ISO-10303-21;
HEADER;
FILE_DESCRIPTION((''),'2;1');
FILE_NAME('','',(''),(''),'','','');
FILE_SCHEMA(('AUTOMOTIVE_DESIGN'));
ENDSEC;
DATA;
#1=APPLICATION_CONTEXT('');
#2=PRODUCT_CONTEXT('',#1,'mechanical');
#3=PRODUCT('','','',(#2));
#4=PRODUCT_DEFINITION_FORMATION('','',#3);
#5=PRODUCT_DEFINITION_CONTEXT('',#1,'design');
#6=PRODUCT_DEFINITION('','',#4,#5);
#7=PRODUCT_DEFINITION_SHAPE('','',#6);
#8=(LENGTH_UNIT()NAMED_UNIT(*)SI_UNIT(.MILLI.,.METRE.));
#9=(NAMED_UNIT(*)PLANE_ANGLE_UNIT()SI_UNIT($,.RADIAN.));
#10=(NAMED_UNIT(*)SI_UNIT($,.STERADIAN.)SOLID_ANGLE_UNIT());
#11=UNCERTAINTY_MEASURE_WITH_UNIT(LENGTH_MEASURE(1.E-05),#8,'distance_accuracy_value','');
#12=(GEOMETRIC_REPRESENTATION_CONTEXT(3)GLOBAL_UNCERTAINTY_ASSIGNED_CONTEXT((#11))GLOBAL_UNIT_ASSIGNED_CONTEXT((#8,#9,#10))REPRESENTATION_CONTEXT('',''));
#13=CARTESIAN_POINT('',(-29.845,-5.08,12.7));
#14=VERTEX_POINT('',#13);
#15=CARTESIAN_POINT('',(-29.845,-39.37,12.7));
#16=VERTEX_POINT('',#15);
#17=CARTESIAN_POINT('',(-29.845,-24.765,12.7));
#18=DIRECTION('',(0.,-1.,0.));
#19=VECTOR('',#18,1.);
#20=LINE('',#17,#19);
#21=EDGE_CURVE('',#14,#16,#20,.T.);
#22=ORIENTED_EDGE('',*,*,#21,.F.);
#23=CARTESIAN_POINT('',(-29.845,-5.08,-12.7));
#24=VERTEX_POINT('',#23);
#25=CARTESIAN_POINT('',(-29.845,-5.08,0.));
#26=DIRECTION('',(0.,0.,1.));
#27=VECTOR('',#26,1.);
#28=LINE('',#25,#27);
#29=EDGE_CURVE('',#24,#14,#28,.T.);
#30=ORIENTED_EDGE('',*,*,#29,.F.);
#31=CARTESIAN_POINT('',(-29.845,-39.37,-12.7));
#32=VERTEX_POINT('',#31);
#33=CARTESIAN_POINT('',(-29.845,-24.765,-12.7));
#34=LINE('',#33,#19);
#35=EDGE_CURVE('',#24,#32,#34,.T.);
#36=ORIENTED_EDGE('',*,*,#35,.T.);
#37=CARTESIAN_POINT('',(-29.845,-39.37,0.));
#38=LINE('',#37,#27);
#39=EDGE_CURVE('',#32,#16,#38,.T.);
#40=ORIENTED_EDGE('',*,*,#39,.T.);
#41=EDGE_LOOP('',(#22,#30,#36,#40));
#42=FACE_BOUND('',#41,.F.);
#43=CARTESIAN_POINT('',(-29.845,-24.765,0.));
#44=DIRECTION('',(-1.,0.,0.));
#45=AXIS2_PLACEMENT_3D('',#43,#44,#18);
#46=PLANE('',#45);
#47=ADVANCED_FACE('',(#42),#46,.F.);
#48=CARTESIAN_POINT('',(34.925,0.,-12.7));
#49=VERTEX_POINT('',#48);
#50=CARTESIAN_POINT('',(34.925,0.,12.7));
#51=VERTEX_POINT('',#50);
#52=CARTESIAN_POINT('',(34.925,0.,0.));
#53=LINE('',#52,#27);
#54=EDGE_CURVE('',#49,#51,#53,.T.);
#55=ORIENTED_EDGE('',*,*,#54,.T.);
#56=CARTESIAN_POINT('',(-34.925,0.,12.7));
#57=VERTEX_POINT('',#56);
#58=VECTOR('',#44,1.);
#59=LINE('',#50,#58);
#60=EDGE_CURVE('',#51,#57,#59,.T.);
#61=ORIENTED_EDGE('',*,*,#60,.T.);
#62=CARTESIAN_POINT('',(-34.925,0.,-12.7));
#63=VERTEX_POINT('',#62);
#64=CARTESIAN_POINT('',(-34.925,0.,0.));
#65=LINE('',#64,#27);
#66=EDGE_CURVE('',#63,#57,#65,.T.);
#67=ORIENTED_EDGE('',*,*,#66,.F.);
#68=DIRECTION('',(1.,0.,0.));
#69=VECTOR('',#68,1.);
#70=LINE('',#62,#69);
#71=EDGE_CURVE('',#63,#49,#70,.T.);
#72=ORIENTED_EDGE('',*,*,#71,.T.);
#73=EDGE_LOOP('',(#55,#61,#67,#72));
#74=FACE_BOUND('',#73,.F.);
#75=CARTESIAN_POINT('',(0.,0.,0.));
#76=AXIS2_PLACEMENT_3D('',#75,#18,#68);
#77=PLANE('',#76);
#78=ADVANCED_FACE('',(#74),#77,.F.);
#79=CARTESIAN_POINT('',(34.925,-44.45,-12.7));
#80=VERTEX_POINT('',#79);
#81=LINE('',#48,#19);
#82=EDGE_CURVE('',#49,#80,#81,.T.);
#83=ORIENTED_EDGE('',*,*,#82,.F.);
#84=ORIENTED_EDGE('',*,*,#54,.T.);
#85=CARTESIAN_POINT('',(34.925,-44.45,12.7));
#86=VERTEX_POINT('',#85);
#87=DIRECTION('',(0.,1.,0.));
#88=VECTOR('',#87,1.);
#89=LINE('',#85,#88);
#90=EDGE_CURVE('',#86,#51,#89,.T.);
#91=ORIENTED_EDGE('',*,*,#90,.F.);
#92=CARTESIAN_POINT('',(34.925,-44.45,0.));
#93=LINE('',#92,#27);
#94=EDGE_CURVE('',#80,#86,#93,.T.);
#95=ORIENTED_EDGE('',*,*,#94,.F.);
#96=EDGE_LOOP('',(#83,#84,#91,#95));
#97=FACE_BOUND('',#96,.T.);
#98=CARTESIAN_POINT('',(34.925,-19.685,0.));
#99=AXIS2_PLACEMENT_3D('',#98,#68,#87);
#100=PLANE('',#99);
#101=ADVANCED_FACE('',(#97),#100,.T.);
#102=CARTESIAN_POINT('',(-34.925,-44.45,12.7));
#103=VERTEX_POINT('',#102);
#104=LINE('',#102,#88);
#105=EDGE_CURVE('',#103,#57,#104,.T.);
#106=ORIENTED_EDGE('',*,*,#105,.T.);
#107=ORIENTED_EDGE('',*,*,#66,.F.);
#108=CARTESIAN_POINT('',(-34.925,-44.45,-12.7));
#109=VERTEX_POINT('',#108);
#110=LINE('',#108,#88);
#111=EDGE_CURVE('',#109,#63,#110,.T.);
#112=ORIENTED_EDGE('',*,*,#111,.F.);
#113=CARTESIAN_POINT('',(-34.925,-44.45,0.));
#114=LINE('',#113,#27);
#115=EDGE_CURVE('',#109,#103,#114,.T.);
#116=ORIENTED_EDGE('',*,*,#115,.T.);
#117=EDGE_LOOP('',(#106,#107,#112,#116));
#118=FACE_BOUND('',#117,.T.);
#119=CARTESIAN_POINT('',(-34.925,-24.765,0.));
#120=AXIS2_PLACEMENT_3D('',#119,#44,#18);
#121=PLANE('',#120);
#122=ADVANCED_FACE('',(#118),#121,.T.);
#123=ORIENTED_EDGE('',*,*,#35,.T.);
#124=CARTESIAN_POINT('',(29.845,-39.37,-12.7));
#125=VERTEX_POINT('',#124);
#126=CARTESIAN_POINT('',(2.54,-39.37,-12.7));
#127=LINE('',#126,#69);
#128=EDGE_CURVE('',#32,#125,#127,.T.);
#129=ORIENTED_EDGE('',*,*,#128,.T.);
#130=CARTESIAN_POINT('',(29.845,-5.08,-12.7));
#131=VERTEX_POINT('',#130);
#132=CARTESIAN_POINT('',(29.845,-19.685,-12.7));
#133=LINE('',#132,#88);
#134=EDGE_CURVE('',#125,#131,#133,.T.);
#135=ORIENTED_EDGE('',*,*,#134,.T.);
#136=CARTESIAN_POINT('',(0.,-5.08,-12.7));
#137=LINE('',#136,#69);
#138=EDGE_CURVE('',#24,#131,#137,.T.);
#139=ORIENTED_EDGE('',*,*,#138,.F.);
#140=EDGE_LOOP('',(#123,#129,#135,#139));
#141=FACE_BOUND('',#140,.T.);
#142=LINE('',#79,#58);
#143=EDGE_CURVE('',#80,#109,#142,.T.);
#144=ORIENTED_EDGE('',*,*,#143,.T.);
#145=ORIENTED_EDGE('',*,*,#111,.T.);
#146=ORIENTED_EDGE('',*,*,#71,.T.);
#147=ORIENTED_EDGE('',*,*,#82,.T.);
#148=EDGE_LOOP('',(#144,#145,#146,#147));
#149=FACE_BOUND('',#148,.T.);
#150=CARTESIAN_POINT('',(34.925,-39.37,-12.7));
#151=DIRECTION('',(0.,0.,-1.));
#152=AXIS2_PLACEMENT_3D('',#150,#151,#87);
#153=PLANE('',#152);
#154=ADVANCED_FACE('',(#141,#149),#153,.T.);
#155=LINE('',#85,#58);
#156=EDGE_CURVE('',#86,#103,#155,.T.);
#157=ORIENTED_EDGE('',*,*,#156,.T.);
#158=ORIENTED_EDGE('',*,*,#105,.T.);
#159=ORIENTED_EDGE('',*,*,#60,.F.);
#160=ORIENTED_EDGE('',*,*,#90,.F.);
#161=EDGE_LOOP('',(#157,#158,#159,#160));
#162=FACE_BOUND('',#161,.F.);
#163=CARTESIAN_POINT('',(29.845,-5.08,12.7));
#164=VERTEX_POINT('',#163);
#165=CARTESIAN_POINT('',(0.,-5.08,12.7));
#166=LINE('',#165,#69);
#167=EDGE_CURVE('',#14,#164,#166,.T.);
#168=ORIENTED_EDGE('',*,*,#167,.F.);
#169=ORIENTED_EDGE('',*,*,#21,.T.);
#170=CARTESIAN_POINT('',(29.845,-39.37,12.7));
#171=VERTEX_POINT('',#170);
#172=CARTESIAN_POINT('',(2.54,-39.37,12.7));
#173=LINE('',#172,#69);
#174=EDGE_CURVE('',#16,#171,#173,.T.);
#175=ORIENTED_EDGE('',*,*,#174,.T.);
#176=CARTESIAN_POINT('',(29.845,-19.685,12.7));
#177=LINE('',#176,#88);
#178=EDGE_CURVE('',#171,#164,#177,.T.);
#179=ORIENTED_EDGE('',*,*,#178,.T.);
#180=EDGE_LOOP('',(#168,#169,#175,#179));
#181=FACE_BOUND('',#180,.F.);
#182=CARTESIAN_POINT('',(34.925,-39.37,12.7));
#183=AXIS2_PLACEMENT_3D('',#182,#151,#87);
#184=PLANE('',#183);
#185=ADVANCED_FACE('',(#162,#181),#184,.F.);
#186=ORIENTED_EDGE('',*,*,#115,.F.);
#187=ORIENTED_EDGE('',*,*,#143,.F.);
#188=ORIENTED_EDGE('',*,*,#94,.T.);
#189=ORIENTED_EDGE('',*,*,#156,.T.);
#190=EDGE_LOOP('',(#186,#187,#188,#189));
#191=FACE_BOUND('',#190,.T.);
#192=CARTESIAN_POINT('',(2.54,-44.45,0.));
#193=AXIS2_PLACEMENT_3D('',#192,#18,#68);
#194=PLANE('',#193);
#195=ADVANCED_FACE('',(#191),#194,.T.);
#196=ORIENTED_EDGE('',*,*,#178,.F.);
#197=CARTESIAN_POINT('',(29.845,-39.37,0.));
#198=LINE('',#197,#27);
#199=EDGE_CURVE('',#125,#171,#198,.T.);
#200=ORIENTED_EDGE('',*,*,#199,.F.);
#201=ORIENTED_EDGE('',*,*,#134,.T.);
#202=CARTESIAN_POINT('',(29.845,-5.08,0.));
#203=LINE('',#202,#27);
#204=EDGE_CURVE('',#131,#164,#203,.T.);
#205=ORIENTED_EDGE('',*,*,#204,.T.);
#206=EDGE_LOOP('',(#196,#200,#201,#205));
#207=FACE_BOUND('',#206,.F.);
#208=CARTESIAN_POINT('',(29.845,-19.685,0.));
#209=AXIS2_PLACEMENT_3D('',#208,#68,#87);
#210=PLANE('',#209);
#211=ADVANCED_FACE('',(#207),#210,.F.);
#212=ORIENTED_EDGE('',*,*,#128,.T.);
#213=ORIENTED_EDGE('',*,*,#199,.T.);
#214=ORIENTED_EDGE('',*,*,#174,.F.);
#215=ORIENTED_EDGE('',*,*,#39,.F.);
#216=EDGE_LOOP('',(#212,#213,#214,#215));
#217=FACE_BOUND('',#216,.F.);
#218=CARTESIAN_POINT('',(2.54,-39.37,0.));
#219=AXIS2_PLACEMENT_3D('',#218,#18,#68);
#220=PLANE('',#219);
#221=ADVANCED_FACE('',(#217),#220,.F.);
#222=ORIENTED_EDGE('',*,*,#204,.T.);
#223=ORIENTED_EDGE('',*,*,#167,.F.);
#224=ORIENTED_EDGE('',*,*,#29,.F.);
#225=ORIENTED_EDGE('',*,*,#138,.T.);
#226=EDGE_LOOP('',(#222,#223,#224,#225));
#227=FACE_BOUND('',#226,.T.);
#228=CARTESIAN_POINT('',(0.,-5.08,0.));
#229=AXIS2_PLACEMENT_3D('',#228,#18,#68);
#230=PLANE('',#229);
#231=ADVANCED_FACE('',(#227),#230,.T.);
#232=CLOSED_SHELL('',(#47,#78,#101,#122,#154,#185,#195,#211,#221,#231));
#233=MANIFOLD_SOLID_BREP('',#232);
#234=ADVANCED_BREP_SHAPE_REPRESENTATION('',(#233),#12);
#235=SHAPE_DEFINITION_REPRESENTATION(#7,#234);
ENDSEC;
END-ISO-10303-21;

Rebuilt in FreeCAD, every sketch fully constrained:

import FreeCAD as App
import Part
import Sketcher

V = App.Vector
Q = App.Units.Quantity


def add_polygon(sketch, points):
    """Adds a closed chain of lines whose ends are joined by coincident constraints."""
    first, n = sketch.GeometryCount, len(points)
    for a, b in zip(points, points[1:] + points[:1]):
        sketch.addGeometry(Part.LineSegment(App.Vector(*a, 0), App.Vector(*b, 0)), False)
    for i in range(n):
        sketch.addConstraint(Sketcher.Constraint("Coincident", first + i, 2, first + (i + 1) % n, 1))

doc = App.newDocument("Part")
params = doc.addObject("Spreadsheet::Sheet", "Params")
for row, (alias, value) in enumerate([
    ("sketch1_height", "1 in"),
    ("sketch1_width", "2.75 in"),
    ("pad1_length", "0.2 in"),
    ("sketch2_height", "1 in"),
    ("sketch2_width", "1.55 in"),
    ("pad2_length", "0.2 in"),
    ("sketch3_height", "1 in"),
    ("sketch3_width", "2.55 in"),
    ("pad3_length", "0.2 in"),
    ("sketch4_height", "1 in"),
    ("sketch4_width", "1.55 in"),
    ("pad4_length", "0.2 in"),
], start=1):
    params.set(f"A{row}", alias)
    params.set(f"B{row}", "=" + value)
    params.setAlias(f"B{row}", alias)

body = doc.addObject("PartDesign::Body", "Body")

# Sketch on XZ plane
sketch1 = body.newObject("Sketcher::SketchObject", "Sketch")
sketch1.AttachmentSupport = (doc.getObject("XZ_Plane"), [""])
sketch1.MapMode = "FlatFace"
add_polygon(sketch1, [(-35, 13), (-35, -13), (35, -13), (35, 13)])  # lines 0-3
sketch1.addConstraint(Sketcher.Constraint("Vertical", 0))
sketch1.addConstraint(Sketcher.Constraint("Horizontal", 1))
sketch1.addConstraint(Sketcher.Constraint("Vertical", 2))
sketch1.addConstraint(Sketcher.Constraint("Horizontal", 3))
sketch1.addConstraint(Sketcher.Constraint("Symmetric", 0, 2, 2, 2, -1, 1))
sketch1.addConstraint(Sketcher.Constraint("DistanceY", 0, 2, 0, 1, Q("1 in")))
sketch1.addConstraint(Sketcher.Constraint("DistanceX", 1, 1, 1, 2, Q("2.75 in")))
sketch1.setExpression("Constraints[9]", "Params.sketch1_height")
sketch1.setExpression("Constraints[10]", "Params.sketch1_width")
pad1 = body.newObject("PartDesign::Pad", "Pad")
pad1.Profile = sketch1
pad1.setExpression("Length", "Params.pad1_length")

# Sketch on YZ plane
sketch2 = body.newObject("Sketcher::SketchObject", "Sketch001")
sketch2.AttachmentSupport = (doc.getObject("YZ_Plane"), [""])
sketch2.MapMode = "FlatFace"
sketch2.AttachmentOffset = App.Placement(V(0, 0, -1.375 * 25.4), App.Rotation())
add_polygon(sketch2, [(-5, 13), (-5, -13), (-44, -13), (-44, 13)])  # lines 0-3
sketch2.addConstraint(Sketcher.Constraint("Vertical", 0))
sketch2.addConstraint(Sketcher.Constraint("Horizontal", 1))
sketch2.addConstraint(Sketcher.Constraint("Vertical", 2))
sketch2.addConstraint(Sketcher.Constraint("Horizontal", 3))
sketch2.addConstraint(Sketcher.Constraint("DistanceY", 0, 2, 0, 1, Q("1 in")))
sketch2.addConstraint(Sketcher.Constraint("DistanceX", 1, 2, 1, 1, Q("1.55 in")))
sketch2.addConstraint(Sketcher.Constraint("DistanceX", 0, 2, -1, 1, Q("0.2 in")))
sketch2.addConstraint(Sketcher.Constraint("DistanceY", 0, 2, -1, 1, Q("0.5 in")))
sketch2.setExpression("Constraints[8]", "Params.sketch2_height")
sketch2.setExpression("Constraints[9]", "Params.sketch2_width")
pad2 = body.newObject("PartDesign::Pad", "Pad001")
pad2.Profile = sketch2
pad2.setExpression("Length", "Params.pad2_length")

# Sketch on XZ plane
sketch3 = body.newObject("Sketcher::SketchObject", "Sketch002")
sketch3.AttachmentSupport = (doc.getObject("XZ_Plane"), [""])
sketch3.MapMode = "FlatFace"
sketch3.AttachmentOffset = App.Placement(V(0, 0, 1.75 * 25.4), App.Rotation())
add_polygon(sketch3, [(-30, 13), (-30, -13), (35, -13), (35, 13)])  # lines 0-3
sketch3.addConstraint(Sketcher.Constraint("Vertical", 0))
sketch3.addConstraint(Sketcher.Constraint("Horizontal", 1))
sketch3.addConstraint(Sketcher.Constraint("Vertical", 2))
sketch3.addConstraint(Sketcher.Constraint("Horizontal", 3))
sketch3.addConstraint(Sketcher.Constraint("DistanceY", 0, 2, 0, 1, Q("1 in")))
sketch3.addConstraint(Sketcher.Constraint("DistanceX", 1, 1, 1, 2, Q("2.55 in")))
sketch3.addConstraint(Sketcher.Constraint("DistanceY", 0, 2, -1, 1, Q("0.5 in")))
sketch3.addConstraint(Sketcher.Constraint("DistanceX", 0, 2, -1, 1, Q("1.175 in")))
sketch3.setExpression("Constraints[8]", "Params.sketch3_height")
sketch3.setExpression("Constraints[9]", "Params.sketch3_width")
pad3 = body.newObject("PartDesign::Pad", "Pad002")
pad3.Profile = sketch3
pad3.setExpression("Length", "Params.pad3_length")
pad3.Reversed = True

# Sketch on YZ plane
sketch4 = body.newObject("Sketcher::SketchObject", "Sketch003")
sketch4.AttachmentSupport = (doc.getObject("YZ_Plane"), [""])
sketch4.MapMode = "FlatFace"
sketch4.AttachmentOffset = App.Placement(V(0, 0, 1.375 * 25.4), App.Rotation())
add_polygon(sketch4, [(-39, 13), (-39, -13), (0, -13), (0, 13)])  # lines 0-3
sketch4.addConstraint(Sketcher.Constraint("Vertical", 0))
sketch4.addConstraint(Sketcher.Constraint("Horizontal", 1))
sketch4.addConstraint(Sketcher.Constraint("Vertical", 2))
sketch4.addConstraint(Sketcher.Constraint("Horizontal", 3))
sketch4.addConstraint(Sketcher.Constraint("Symmetric", 1, 2, 2, 2, -1, 1))
sketch4.addConstraint(Sketcher.Constraint("DistanceY", 0, 2, 0, 1, Q("1 in")))
sketch4.addConstraint(Sketcher.Constraint("DistanceX", 1, 1, 1, 2, Q("1.55 in")))
sketch4.setExpression("Constraints[9]", "Params.sketch4_height")
sketch4.setExpression("Constraints[10]", "Params.sketch4_width")
pad4 = body.newObject("PartDesign::Pad", "Pad003")
pad4.Profile = sketch4
pad4.setExpression("Length", "Params.pad4_length")
pad4.Reversed = True

doc.recompute()
